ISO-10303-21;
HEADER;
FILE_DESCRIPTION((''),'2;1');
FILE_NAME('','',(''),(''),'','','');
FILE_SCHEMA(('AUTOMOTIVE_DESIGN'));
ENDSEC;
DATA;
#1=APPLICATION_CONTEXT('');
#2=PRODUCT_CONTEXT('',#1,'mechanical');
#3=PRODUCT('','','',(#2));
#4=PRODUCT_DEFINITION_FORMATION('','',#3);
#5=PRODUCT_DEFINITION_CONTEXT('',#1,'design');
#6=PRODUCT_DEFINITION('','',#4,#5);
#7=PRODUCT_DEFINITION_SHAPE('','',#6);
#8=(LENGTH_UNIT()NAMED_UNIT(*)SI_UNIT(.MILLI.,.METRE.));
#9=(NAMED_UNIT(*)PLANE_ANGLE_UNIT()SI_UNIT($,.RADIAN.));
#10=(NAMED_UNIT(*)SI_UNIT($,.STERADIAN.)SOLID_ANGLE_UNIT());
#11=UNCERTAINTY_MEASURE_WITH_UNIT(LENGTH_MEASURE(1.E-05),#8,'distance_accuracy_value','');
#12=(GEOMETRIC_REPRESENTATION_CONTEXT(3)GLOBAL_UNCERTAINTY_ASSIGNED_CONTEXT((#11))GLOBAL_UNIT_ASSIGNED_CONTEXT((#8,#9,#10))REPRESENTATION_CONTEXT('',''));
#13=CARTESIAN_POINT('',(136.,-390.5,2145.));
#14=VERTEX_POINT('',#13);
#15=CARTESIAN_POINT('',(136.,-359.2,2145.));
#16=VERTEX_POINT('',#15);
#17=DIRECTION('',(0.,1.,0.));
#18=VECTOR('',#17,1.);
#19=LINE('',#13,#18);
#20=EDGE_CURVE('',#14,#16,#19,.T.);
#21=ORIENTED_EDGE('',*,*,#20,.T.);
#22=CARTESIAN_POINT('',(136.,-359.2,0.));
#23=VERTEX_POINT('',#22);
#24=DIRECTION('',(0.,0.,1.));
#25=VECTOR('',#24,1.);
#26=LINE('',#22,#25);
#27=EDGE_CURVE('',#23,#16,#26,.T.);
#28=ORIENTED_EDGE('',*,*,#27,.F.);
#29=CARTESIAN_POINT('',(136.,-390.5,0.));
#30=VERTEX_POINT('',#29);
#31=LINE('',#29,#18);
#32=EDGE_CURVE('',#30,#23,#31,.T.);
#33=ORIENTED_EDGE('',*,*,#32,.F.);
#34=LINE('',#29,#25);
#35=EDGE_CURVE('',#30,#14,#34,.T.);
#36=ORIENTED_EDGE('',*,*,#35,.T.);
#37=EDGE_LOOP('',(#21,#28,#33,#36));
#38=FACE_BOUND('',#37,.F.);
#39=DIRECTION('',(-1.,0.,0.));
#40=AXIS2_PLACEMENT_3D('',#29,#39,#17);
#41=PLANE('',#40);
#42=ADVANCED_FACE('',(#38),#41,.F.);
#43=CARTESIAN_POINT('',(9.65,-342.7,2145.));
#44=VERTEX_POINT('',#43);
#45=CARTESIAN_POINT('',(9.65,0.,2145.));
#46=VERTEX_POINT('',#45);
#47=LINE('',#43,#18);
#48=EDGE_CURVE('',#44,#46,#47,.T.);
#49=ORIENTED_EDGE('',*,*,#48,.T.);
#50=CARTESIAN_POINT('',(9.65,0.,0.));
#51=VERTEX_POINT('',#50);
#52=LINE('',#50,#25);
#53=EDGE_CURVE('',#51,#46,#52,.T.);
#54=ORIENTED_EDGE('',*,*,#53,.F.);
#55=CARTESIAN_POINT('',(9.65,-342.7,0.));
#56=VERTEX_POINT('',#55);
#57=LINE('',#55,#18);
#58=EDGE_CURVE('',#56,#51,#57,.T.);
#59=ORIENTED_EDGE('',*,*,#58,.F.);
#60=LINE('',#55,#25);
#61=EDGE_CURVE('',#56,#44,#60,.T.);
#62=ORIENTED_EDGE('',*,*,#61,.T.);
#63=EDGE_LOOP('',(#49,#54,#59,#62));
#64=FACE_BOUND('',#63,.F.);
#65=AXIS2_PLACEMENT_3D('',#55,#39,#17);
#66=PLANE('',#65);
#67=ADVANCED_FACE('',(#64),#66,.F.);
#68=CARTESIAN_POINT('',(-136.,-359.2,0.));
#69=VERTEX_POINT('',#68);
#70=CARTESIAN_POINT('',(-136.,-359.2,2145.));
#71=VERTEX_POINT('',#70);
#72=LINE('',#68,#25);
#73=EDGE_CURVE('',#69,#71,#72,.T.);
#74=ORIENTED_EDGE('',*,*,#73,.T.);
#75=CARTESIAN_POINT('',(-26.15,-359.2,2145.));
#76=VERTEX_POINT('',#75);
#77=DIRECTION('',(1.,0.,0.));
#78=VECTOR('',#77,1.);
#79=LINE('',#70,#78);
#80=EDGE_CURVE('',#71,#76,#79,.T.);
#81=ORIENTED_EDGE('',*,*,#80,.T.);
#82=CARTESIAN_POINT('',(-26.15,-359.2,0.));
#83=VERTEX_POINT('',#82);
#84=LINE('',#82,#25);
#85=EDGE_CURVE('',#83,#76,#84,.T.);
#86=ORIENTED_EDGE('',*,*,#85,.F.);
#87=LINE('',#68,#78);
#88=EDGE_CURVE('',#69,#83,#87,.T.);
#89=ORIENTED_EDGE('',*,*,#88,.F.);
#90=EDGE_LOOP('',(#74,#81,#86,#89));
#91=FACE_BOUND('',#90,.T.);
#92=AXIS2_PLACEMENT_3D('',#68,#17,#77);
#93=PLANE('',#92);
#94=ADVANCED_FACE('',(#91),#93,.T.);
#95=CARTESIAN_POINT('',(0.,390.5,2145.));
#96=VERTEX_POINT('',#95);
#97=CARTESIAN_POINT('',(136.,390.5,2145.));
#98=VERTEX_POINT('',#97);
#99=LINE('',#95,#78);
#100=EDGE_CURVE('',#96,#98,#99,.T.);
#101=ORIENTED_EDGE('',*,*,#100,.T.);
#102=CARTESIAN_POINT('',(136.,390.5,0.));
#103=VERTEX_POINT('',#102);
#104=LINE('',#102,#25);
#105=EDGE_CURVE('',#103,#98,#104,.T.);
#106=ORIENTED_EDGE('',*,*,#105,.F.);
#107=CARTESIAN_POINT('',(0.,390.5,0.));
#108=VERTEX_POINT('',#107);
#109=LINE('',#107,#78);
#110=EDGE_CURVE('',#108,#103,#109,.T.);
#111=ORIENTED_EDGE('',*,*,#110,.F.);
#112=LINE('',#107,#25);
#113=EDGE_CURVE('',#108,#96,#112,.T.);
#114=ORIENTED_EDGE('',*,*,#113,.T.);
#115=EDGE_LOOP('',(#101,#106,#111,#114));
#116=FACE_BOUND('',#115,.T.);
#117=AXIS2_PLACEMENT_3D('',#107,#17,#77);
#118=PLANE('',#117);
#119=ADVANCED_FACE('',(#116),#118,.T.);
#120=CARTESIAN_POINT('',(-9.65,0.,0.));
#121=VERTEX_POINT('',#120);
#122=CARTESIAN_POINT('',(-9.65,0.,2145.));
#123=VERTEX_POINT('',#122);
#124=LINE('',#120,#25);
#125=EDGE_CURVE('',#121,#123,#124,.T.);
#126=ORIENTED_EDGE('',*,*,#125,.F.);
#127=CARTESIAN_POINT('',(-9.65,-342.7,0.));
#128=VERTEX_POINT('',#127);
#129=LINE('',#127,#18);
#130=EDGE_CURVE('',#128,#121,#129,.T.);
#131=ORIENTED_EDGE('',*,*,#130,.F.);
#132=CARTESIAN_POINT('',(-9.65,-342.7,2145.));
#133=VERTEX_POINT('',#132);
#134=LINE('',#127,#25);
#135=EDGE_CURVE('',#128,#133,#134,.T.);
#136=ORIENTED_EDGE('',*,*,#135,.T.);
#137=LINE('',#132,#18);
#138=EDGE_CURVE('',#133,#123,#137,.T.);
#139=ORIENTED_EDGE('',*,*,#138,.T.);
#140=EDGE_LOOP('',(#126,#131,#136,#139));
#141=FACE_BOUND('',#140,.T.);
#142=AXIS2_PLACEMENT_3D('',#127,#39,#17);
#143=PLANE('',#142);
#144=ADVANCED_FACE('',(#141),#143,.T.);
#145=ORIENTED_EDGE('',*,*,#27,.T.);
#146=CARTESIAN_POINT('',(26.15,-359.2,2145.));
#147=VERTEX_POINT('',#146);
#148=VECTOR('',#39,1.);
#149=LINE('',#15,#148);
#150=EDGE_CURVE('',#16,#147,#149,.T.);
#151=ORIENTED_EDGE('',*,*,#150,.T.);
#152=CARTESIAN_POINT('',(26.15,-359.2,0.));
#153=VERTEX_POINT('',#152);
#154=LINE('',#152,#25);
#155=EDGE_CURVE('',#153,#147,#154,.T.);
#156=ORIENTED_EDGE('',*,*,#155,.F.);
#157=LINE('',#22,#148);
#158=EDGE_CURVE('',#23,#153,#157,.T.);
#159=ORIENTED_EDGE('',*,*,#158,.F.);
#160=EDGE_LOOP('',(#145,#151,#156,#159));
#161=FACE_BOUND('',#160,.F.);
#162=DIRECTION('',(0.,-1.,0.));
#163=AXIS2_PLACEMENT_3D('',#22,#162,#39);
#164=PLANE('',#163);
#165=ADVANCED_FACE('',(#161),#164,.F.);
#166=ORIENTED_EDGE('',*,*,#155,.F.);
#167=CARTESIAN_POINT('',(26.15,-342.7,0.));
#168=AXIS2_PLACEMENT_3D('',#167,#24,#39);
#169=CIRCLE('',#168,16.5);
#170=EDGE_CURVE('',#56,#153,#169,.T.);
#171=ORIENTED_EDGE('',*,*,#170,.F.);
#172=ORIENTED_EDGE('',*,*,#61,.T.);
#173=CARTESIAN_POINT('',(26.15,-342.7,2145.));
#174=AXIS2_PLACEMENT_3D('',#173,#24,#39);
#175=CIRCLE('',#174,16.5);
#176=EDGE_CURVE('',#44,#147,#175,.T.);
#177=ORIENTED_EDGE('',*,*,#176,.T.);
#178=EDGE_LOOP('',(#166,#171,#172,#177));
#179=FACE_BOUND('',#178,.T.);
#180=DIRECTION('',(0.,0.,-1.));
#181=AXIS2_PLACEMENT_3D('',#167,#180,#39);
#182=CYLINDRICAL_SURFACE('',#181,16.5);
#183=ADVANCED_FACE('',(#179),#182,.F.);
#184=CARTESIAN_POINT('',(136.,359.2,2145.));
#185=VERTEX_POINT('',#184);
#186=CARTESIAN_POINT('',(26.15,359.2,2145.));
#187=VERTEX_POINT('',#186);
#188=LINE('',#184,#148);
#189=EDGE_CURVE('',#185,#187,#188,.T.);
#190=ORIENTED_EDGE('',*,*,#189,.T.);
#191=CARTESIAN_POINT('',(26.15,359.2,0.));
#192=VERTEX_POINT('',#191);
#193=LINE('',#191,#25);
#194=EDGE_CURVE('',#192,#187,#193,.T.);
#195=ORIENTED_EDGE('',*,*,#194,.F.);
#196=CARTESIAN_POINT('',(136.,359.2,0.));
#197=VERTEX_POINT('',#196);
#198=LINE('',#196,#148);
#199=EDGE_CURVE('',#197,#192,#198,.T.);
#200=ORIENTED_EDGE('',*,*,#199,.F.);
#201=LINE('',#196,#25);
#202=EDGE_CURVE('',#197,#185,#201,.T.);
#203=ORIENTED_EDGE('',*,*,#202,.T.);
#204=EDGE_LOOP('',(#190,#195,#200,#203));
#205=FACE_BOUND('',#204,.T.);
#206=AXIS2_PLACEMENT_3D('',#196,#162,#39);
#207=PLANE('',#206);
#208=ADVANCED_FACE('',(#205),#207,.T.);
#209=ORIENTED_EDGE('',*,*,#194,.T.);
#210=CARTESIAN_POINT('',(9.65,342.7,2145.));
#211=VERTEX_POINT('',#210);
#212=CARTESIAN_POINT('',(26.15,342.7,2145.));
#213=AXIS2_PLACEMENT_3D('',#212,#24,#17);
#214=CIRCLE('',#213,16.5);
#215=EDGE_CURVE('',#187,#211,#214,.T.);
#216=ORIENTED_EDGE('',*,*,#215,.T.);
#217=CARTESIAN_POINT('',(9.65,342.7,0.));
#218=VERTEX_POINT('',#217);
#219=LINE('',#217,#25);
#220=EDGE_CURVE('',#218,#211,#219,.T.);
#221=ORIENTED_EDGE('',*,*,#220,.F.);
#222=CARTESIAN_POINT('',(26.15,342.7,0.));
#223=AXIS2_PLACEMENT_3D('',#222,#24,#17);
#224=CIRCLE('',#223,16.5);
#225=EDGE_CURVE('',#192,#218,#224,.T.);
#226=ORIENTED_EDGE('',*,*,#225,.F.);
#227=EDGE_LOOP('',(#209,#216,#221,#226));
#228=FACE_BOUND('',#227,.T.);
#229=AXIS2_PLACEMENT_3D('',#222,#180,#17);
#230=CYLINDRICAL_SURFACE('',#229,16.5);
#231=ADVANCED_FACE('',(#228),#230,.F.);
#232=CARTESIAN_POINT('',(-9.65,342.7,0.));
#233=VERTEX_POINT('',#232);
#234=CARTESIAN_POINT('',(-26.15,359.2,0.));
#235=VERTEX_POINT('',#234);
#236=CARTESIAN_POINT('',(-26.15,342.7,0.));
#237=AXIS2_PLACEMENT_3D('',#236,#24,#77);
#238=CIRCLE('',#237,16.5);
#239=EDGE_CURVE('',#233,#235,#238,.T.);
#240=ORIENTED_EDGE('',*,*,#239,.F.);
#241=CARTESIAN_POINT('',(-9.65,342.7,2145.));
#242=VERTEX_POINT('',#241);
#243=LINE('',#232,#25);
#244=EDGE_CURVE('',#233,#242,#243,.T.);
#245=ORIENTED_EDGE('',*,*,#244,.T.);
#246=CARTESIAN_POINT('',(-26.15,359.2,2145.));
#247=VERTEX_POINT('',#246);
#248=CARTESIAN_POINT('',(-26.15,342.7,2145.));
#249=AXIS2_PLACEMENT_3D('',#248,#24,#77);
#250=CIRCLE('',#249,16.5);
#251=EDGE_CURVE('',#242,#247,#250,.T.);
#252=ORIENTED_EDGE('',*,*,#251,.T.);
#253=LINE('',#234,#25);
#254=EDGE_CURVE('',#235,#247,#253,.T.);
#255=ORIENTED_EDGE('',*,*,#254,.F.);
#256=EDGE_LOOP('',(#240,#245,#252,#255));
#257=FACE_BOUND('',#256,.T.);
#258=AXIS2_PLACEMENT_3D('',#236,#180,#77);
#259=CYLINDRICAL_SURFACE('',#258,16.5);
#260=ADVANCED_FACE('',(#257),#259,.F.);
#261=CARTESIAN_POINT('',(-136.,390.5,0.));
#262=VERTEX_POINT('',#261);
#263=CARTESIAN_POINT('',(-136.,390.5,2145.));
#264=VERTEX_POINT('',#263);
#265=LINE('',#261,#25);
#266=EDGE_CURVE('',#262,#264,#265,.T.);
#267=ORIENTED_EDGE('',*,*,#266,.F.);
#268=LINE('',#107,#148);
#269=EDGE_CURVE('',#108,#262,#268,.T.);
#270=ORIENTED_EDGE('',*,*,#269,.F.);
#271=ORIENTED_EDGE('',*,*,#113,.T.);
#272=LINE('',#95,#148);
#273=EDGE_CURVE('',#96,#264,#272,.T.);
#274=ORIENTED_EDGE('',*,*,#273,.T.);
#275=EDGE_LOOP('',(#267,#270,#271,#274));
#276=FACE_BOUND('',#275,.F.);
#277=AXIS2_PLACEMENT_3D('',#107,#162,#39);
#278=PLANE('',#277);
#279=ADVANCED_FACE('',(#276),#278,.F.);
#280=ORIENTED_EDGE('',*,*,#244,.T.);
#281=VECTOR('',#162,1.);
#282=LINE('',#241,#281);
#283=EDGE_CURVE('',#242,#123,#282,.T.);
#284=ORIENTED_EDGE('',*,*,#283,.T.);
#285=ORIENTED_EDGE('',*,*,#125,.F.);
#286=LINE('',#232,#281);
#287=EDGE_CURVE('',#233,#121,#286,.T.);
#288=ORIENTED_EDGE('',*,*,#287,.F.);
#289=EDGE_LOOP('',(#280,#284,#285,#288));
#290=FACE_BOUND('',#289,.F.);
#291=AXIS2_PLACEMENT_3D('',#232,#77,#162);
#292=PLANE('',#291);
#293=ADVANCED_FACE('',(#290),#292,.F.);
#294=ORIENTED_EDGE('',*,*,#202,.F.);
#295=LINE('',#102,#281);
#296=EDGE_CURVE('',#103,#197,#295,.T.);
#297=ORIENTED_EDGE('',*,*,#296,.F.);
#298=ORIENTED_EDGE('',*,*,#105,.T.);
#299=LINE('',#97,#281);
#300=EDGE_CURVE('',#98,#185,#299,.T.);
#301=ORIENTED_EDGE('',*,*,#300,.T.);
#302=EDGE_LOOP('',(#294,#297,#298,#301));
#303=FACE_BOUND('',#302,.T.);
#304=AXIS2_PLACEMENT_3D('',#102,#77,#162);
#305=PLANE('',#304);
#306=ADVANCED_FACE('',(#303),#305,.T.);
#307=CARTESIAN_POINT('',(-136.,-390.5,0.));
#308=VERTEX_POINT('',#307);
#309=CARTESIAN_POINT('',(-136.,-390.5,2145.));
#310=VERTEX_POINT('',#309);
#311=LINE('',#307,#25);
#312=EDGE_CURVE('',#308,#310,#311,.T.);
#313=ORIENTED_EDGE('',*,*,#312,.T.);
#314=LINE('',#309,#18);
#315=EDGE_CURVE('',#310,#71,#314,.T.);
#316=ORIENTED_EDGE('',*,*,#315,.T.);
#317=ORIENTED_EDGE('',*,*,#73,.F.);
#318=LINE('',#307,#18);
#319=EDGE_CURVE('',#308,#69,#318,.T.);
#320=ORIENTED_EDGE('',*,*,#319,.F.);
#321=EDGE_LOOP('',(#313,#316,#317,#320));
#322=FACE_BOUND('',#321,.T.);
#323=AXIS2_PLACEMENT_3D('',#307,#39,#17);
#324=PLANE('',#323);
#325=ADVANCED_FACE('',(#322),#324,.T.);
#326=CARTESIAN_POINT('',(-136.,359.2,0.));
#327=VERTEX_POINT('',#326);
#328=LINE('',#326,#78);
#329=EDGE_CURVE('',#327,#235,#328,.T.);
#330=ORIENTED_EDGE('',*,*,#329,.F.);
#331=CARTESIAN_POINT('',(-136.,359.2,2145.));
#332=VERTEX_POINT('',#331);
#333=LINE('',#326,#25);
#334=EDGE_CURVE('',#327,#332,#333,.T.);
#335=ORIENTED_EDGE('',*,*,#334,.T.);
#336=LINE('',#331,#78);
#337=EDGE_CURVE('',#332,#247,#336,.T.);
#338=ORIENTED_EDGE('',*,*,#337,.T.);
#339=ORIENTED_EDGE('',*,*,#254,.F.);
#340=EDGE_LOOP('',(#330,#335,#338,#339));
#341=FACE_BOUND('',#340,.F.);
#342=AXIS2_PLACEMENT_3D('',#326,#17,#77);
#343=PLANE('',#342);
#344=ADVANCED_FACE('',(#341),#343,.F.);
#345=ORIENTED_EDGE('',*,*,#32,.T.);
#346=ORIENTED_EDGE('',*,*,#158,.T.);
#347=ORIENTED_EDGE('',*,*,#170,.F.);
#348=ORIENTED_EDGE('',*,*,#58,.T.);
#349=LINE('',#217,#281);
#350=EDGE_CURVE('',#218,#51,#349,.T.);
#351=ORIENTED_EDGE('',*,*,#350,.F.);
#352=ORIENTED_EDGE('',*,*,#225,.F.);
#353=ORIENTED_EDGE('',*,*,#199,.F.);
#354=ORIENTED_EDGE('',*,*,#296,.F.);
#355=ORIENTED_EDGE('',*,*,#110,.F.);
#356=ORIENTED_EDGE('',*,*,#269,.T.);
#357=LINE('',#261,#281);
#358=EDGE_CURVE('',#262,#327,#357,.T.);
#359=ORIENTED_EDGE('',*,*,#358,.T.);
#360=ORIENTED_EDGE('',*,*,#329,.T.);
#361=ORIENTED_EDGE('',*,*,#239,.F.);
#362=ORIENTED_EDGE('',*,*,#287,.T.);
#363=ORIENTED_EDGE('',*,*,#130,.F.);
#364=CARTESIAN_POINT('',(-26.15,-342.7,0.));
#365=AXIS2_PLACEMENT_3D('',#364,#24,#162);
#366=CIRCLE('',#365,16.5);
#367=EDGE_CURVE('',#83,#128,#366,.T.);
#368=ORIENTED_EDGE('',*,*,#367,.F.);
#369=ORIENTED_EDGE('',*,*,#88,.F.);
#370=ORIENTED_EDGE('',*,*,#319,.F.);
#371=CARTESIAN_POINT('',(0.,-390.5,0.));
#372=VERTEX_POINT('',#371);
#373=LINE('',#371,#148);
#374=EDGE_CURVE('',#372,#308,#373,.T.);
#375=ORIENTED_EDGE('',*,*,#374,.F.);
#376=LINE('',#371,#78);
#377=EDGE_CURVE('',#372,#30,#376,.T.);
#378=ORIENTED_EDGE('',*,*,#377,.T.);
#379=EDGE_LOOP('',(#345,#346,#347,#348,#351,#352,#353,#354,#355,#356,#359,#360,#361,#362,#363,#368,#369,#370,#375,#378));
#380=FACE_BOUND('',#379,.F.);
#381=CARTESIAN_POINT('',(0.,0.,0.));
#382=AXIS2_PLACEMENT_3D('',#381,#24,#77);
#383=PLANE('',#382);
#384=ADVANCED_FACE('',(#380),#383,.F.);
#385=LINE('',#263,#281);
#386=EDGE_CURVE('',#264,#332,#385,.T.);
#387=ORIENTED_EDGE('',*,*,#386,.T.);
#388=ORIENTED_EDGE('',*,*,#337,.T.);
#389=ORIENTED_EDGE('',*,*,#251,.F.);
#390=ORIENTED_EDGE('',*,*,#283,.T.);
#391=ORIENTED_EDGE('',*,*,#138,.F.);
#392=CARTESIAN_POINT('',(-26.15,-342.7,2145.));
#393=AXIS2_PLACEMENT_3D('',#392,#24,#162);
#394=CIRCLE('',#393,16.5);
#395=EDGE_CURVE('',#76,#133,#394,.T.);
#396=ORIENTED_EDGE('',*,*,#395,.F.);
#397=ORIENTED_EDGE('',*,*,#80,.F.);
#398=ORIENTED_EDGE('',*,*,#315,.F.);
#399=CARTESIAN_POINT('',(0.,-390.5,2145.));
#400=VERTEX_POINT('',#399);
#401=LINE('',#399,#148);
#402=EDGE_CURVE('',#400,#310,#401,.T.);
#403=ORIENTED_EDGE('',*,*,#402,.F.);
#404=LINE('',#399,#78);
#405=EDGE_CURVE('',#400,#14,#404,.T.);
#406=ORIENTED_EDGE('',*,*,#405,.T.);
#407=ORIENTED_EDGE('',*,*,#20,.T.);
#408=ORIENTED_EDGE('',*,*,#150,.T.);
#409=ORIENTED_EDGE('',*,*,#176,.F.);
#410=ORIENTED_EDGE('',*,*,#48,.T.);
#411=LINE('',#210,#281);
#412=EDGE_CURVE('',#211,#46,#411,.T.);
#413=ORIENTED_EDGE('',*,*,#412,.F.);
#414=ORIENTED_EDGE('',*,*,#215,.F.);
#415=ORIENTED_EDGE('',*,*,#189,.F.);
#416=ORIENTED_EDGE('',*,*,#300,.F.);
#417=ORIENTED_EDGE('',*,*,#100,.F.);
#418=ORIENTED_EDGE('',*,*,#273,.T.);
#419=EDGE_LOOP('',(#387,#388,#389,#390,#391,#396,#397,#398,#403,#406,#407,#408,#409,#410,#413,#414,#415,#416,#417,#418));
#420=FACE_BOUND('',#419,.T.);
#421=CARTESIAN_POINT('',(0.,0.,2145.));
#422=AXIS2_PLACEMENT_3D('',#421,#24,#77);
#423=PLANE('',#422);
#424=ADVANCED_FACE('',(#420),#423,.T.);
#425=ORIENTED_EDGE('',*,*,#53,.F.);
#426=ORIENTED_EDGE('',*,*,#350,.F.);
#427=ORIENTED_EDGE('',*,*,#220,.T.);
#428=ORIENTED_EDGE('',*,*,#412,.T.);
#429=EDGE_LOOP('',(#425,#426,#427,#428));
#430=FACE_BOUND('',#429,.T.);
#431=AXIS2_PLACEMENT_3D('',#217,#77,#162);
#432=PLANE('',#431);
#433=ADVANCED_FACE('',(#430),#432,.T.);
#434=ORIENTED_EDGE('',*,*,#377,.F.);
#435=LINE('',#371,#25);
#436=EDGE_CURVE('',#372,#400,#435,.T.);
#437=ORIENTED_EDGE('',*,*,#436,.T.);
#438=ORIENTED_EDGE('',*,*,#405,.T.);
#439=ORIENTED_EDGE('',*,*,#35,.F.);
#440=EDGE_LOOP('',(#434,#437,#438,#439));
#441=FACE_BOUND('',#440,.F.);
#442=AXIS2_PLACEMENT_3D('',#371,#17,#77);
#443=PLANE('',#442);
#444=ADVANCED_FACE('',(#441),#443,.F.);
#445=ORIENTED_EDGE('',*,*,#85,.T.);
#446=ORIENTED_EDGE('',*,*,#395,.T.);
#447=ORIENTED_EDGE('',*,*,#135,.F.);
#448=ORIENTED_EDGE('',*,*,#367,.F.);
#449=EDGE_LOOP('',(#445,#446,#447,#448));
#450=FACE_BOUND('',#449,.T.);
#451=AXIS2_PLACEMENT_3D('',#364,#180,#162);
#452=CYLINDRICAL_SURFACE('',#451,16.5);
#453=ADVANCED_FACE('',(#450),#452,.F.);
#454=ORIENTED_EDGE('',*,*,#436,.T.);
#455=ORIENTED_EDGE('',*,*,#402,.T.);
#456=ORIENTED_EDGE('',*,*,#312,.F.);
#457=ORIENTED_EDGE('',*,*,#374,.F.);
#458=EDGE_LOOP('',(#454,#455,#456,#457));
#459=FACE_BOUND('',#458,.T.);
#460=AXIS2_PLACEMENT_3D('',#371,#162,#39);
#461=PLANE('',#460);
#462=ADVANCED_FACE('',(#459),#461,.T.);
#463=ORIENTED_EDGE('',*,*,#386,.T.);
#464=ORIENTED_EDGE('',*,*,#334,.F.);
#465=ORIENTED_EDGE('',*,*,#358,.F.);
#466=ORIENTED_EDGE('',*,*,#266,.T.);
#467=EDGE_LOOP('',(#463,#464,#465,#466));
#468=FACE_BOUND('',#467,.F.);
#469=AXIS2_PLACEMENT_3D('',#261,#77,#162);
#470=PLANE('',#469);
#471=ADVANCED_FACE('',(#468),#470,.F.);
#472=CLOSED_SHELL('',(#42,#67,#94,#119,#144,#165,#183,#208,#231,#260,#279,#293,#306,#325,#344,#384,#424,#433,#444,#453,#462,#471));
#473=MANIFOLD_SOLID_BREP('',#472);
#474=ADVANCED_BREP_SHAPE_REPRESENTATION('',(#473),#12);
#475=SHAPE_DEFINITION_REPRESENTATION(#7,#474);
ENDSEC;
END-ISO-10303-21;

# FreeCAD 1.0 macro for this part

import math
import FreeCAD as App
import Part
import Sketcher

V = App.Vector

doc = App.newDocument("Part")
body = doc.addObject("PartDesign::Body", "Body")

# Sketch on XY plane
sketch1 = body.newObject("Sketcher::SketchObject", "Sketch")
sketch1.AttachmentSupport = (doc.getObject("XY_Plane"), [""])
sketch1.MapMode = "FlatFace"
sketch1.addGeometry(Part.LineSegment(V(-136, -359, 0), V(-136, -390, 0)), False)
sketch1.addGeometry(Part.LineSegment(V(-136, -390, 0), V(136, -390, 0)), False)
sketch1.addGeometry(Part.LineSegment(V(136, -390, 0), V(136, -359, 0)), False)
sketch1.addGeometry(Part.LineSegment(V(136, -359, 0), V(26, -359, 0)), False)
sketch1.addGeometry(Part.ArcOfCircle(Part.Circle(V(26, -343, 0), V(0, 0, 1), 16), math.radians(180), math.radians(270)), False)
sketch1.addGeometry(Part.LineSegment(V(10, -343, 0), V(10, 343, 0)), False)
sketch1.addGeometry(Part.ArcOfCircle(Part.Circle(V(26, 343, 0), V(0, 0, 1), 16), math.radians(90), math.radians(180)), False)
sketch1.addGeometry(Part.LineSegment(V(26, 359, 0), V(136, 359, 0)), False)
sketch1.addGeometry(Part.LineSegment(V(136, 359, 0), V(136, 390, 0)), False)
sketch1.addGeometry(Part.LineSegment(V(136, 390, 0), V(-136, 390, 0)), False)
sketch1.addGeometry(Part.LineSegment(V(-136, 390, 0), V(-136, 359, 0)), False)
sketch1.addGeometry(Part.LineSegment(V(-136, 359, 0), V(-26, 359, 0)), False)
sketch1.addGeometry(Part.ArcOfCircle(Part.Circle(V(-26, 343, 0), V(0, 0, 1), 16), math.radians(0), math.radians(90)), False)
sketch1.addGeometry(Part.LineSegment(V(-10, 343, 0), V(-10, -343, 0)), False)
sketch1.addGeometry(Part.ArcOfCircle(Part.Circle(V(-26, -343, 0), V(0, 0, 1), 16), math.radians(-90), math.radians(0)), False)
sketch1.addGeometry(Part.LineSegment(V(-26, -359, 0), V(-136, -359, 0)), False)
sketch1.addConstraint(Sketcher.Constraint("Coincident", 0, 2, 1, 1))
sketch1.addConstraint(Sketcher.Constraint("Coincident", 1, 2, 2, 1))
sketch1.addConstraint(Sketcher.Constraint("Coincident", 2, 2, 3, 1))
sketch1.addConstraint(Sketcher.Constraint("Tangent", 3, 2, 4, 2))
sketch1.addConstraint(Sketcher.Constraint("Tangent", 4, 1, 5, 1))
sketch1.addConstraint(Sketcher.Constraint("Tangent", 5, 2, 6, 2))
sketch1.addConstraint(Sketcher.Constraint("Tangent", 6, 1, 7, 1))
sketch1.addConstraint(Sketcher.Constraint("Coincident", 7, 2, 8, 1))
sketch1.addConstraint(Sketcher.Constraint("Coincident", 8, 2, 9, 1))
sketch1.addConstraint(Sketcher.Constraint("Coincident", 9, 2, 10, 1))
sketch1.addConstraint(Sketcher.Constraint("Coincident", 10, 2, 11, 1))
sketch1.addConstraint(Sketcher.Constraint("Tangent", 11, 2, 12, 2))
sketch1.addConstraint(Sketcher.Constraint("Tangent", 12, 1, 13, 1))
sketch1.addConstraint(Sketcher.Constraint("Tangent", 13, 2, 14, 2))
sketch1.addConstraint(Sketcher.Constraint("Tangent", 14, 1, 15, 1))
sketch1.addConstraint(Sketcher.Constraint("Coincident", 15, 2, 0, 1))
sketch1.addConstraint(Sketcher.Constraint("Vertical", 0))
sketch1.addConstraint(Sketcher.Constraint("Horizontal", 1))
sketch1.addConstraint(Sketcher.Constraint("Vertical", 2))
sketch1.addConstraint(Sketcher.Constraint("Horizontal", 3))
sketch1.addConstraint(Sketcher.Constraint("Vertical", 5))
sketch1.addConstraint(Sketcher.Constraint("Horizontal", 7))
sketch1.addConstraint(Sketcher.Constraint("Vertical", 8))
sketch1.addConstraint(Sketcher.Constraint("Horizontal", 9))
sketch1.addConstraint(Sketcher.Constraint("Vertical", 10))
sketch1.addConstraint(Sketcher.Constraint("Horizontal", 11))
sketch1.addConstraint(Sketcher.Constraint("Vertical", 13))
sketch1.addConstraint(Sketcher.Constraint("Horizontal", 15))
sketch1.addConstraint(Sketcher.Constraint("Equal", 4, 6))
sketch1.addConstraint(Sketcher.Constraint("Equal", 6, 12))
sketch1.addConstraint(Sketcher.Constraint("Equal", 12, 14))
sketch1.addConstraint(Sketcher.Constraint("Symmetric", 4, 3, 12, 3, -1, 1))
sketch1.addConstraint(Sketcher.Constraint("Symmetric", 0, 2, 8, 2, -1, 1))
sketch1.addConstraint(Sketcher.Constraint("Symmetric", 7, 2, 10, 2, -2))
sketch1.addConstraint(Sketcher.Constraint("Symmetric", 2, 2, 15, 2, -2))
sketch1.addConstraint(Sketcher.Constraint("Radius", 4, 16.5))
sketch1.addConstraint(Sketcher.Constraint("DistanceY", 0, 2, 0, 1, 31.3))
sketch1.addConstraint(Sketcher.Constraint("DistanceX", 0, 2, -1, 1, 136.0))
sketch1.addConstraint(Sketcher.Constraint("DistanceY", 0, 2, -1, 1, 390.5))
sketch1.addConstraint(Sketcher.Constraint("DistanceX", -1, 1, 4, 1, 9.65))
pad1 = body.newObject("PartDesign::Pad", "Pad")
pad1.Profile = sketch1
pad1.Length = 2145

doc.recompute()
